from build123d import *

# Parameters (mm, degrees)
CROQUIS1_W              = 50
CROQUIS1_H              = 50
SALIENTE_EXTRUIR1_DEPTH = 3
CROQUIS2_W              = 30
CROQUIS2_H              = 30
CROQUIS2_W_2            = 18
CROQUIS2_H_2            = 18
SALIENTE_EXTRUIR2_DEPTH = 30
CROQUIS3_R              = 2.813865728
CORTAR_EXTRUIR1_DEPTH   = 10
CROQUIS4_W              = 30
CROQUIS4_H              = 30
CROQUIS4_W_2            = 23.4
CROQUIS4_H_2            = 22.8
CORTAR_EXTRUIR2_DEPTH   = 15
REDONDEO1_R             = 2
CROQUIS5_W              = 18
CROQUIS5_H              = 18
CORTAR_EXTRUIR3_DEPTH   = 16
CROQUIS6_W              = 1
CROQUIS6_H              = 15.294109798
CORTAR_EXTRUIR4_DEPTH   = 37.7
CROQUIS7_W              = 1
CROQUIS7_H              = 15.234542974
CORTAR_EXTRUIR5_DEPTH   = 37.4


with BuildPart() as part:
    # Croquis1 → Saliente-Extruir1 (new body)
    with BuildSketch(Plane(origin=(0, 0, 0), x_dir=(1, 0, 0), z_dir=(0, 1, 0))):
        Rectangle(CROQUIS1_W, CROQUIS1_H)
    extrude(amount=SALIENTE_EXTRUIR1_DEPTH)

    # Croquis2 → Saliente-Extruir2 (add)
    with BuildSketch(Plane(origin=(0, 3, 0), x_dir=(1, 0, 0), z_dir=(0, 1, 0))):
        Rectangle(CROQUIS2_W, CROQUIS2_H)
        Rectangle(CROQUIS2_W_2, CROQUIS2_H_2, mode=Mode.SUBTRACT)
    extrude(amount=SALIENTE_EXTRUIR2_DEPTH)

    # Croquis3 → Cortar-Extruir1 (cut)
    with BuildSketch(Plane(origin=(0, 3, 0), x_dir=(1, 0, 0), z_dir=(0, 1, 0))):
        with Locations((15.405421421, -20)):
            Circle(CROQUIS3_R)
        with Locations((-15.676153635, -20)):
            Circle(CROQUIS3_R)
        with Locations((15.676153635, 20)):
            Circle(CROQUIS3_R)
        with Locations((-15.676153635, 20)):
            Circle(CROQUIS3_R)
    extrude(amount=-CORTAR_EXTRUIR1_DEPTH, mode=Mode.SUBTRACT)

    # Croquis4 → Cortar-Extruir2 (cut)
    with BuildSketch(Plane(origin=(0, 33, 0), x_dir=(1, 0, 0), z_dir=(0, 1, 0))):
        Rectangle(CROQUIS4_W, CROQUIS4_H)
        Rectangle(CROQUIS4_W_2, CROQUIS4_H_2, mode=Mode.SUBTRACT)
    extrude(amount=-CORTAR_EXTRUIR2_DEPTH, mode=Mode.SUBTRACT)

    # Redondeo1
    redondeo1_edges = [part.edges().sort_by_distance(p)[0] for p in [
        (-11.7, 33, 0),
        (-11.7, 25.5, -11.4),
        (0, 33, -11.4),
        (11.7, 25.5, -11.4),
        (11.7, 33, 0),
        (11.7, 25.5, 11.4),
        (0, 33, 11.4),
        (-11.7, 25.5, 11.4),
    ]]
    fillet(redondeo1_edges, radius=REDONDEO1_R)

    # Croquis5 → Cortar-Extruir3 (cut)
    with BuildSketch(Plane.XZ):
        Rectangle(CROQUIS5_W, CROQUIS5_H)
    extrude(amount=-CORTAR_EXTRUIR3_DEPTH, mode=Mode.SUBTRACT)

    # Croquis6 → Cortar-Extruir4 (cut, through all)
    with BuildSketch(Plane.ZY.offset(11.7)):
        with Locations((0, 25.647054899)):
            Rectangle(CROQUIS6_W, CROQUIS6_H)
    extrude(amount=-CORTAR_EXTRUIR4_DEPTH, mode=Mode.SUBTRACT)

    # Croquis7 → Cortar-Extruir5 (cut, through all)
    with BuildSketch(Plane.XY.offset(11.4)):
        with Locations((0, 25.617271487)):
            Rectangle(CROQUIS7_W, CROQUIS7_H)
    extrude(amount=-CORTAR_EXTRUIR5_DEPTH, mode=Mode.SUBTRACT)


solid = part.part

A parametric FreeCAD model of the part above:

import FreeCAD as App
import Part
import Sketcher
Q = App.Units.Quantity


def edges_at(feature, points):
    """Names of the edges that pass closest to the given points."""
    edges = feature.Shape.Edges
    near = lambda p: min(range(len(edges)), key=lambda i: edges[i].distToShape(Part.Vertex(*p))[0])
    return sorted({f"Edge{near(p) + 1}" for p in points})

doc = App.newDocument("Part")
params = doc.addObject("Spreadsheet::Sheet", "Params")
for row, (alias, value) in enumerate([
    ("sketch1_width", "50 mm"),
    ("pad1_length", "3 mm"),
    ("sketch2_width", "30 mm"),
    ("sketch2_width2", "18 mm"),
    ("pad2_length", "30 mm"),
    ("pocket1_length", "10 mm"),
    ("sketch4_width", "30 mm"),
    ("sketch4_width2", "23.4 mm"),
    ("sketch4_height", "22.8 mm"),
    ("pocket2_length", "15 mm"),
    ("fillet_radius", "2 mm"),
    ("sketch5_width", "18 mm"),
    ("pocket3_length", "16 mm"),
    ("sketch6_height", "1 mm"),
    ("sketch7_width", "1 mm"),
], start=1):
    params.set(f"A{row}", alias)
    params.set(f"B{row}", "=" + value)
    params.setAlias(f"B{row}", alias)

body = doc.addObject("PartDesign::Body", "Body")

sketch1 = doc.addObject("Sketcher::SketchObject", "Sketch")
body.addObject(sketch1)
sketch1.AttachmentSupport = (doc.XZ_Plane, [""])
sketch1.MapMode = "FlatFace"
sketch1.addGeometry(Part.LineSegment(App.Vector(-25, -25, 0), App.Vector(-25, 25, 0)), False)
sketch1.addGeometry(Part.LineSegment(App.Vector(-25, 25, 0), App.Vector(25, 25, 0)), False)
sketch1.addGeometry(Part.LineSegment(App.Vector(25, 25, 0), App.Vector(25, -25, 0)), False)
sketch1.addGeometry(Part.LineSegment(App.Vector(25, -25, 0), App.Vector(-25, -25, 0)), False)
sketch1.addConstraint(Sketcher.Constraint("Coincident", 0, 2, 1, 1))
sketch1.addConstraint(Sketcher.Constraint("Coincident", 1, 2, 2, 1))
sketch1.addConstraint(Sketcher.Constraint("Coincident", 2, 2, 3, 1))
sketch1.addConstraint(Sketcher.Constraint("Coincident", 3, 2, 0, 1))
sketch1.addConstraint(Sketcher.Constraint("Vertical", 0))
sketch1.addConstraint(Sketcher.Constraint("Horizontal", 1))
sketch1.addConstraint(Sketcher.Constraint("Vertical", 2))
sketch1.addConstraint(Sketcher.Constraint("Horizontal", 3))
sketch1.addConstraint(Sketcher.Constraint("Symmetric", 0, 2, 2, 2, -1, 1))
sketch1.addConstraint(Sketcher.Constraint("Equal", 3, 0))
sketch1.addConstraint(Sketcher.Constraint("DistanceX", 1, 1, 1, 2, Q("50 mm")))
sketch1.setExpression("Constraints[10]", "Params.sketch1_width")
pad1 = doc.addObject("PartDesign::Pad", "Pad")
body.addObject(pad1)
pad1.Profile = sketch1
pad1.setExpression("Length", "Params.pad1_length")
pad1.Reversed = True

sketch2 = doc.addObject("Sketcher::SketchObject", "Sketch001")
body.addObject(sketch2)
sketch2.AttachmentSupport = (doc.XZ_Plane, [""])
sketch2.MapMode = "FlatFace"
sketch2.AttachmentOffset = App.Placement(App.Vector(0, 0, -3), App.Rotation())
sketch2.addGeometry(Part.LineSegment(App.Vector(-15, -15, 0), App.Vector(-15, 15, 0)), False)
sketch2.addGeometry(Part.LineSegment(App.Vector(-15, 15, 0), App.Vector(15, 15, 0)), False)
sketch2.addGeometry(Part.LineSegment(App.Vector(15, 15, 0), App.Vector(15, -15, 0)), False)
sketch2.addGeometry(Part.LineSegment(App.Vector(15, -15, 0), App.Vector(-15, -15, 0)), False)
sketch2.addGeometry(Part.LineSegment(App.Vector(9, 9, 0), App.Vector(-9, 9, 0)), False)
sketch2.addGeometry(Part.LineSegment(App.Vector(-9, 9, 0), App.Vector(-9, -9, 0)), False)
sketch2.addGeometry(Part.LineSegment(App.Vector(-9, -9, 0), App.Vector(9, -9, 0)), False)
sketch2.addGeometry(Part.LineSegment(App.Vector(9, -9, 0), App.Vector(9, 9, 0)), False)
sketch2.addConstraint(Sketcher.Constraint("Coincident", 0, 2, 1, 1))
sketch2.addConstraint(Sketcher.Constraint("Coincident", 1, 2, 2, 1))
sketch2.addConstraint(Sketcher.Constraint("Coincident", 2, 2, 3, 1))
sketch2.addConstraint(Sketcher.Constraint("Coincident", 3, 2, 0, 1))
sketch2.addConstraint(Sketcher.Constraint("Coincident", 4, 2, 5, 1))
sketch2.addConstraint(Sketcher.Constraint("Coincident", 5, 2, 6, 1))
sketch2.addConstraint(Sketcher.Constraint("Coincident", 6, 2, 7, 1))
sketch2.addConstraint(Sketcher.Constraint("Coincident", 7, 2, 4, 1))
sketch2.addConstraint(Sketcher.Constraint("Vertical", 0))
sketch2.addConstraint(Sketcher.Constraint("Horizontal", 1))
sketch2.addConstraint(Sketcher.Constraint("Vertical", 2))
sketch2.addConstraint(Sketcher.Constraint("Horizontal", 3))
sketch2.addConstraint(Sketcher.Constraint("Horizontal", 4))
sketch2.addConstraint(Sketcher.Constraint("Vertical", 5))
sketch2.addConstraint(Sketcher.Constraint("Horizontal", 6))
sketch2.addConstraint(Sketcher.Constraint("Vertical", 7))
sketch2.addConstraint(Sketcher.Constraint("Symmetric", 0, 2, 2, 2, -1, 1))
sketch2.addConstraint(Sketcher.Constraint("Symmetric", 4, 2, 6, 2, -1, 1))
sketch2.addConstraint(Sketcher.Constraint("Equal", 3, 0))
sketch2.addConstraint(Sketcher.Constraint("Equal", 6, 5))
sketch2.addConstraint(Sketcher.Constraint("DistanceX", 1, 1, 1, 2, Q("30 mm")))
sketch2.addConstraint(Sketcher.Constraint("DistanceX", 4, 2, 4, 1, Q("18 mm")))
sketch2.setExpression("Constraints[20]", "Params.sketch2_width")
sketch2.setExpression("Constraints[21]", "Params.sketch2_width2")
pad2 = doc.addObject("PartDesign::Pad", "Pad001")
body.addObject(pad2)
pad2.Profile = sketch2
pad2.setExpression("Length", "Params.pad2_length")
pad2.Reversed = True

sketch3 = doc.addObject("Sketcher::SketchObject", "Sketch002")
body.addObject(sketch3)
sketch3.AttachmentSupport = (doc.XZ_Plane, [""])
sketch3.MapMode = "FlatFace"
sketch3.AttachmentOffset = App.Placement(App.Vector(0, 0, -3), App.Rotation())
sketch3.addGeometry(Part.Circle(App.Vector(15.4, 20, 0), App.Vector(0, 0, 1), 2.8), False)
sketch3.addGeometry(Part.Circle(App.Vector(-15.7, 20, 0), App.Vector(0, 0, 1), 2.8), False)
sketch3.addGeometry(Part.Circle(App.Vector(15.7, -20, 0), App.Vector(0, 0, 1), 2.8), False)
sketch3.addGeometry(Part.Circle(App.Vector(-15.7, -20, 0), App.Vector(0, 0, 1), 2.8), False)
sketch3.addConstraint(Sketcher.Constraint("Equal", 0, 1))
sketch3.addConstraint(Sketcher.Constraint("Equal", 1, 2))
sketch3.addConstraint(Sketcher.Constraint("Equal", 2, 3))
sketch3.addConstraint(Sketcher.Constraint("Symmetric", 1, 3, 2, 3, -1, 1))
sketch3.addConstraint(Sketcher.Constraint("Symmetric", 2, 3, 3, 3, -2))
sketch3.addConstraint(Sketcher.Constraint("Horizontal", 0, 3, 1, 3))
sketch3.addConstraint(Sketcher.Constraint("DistanceY", -1, 1, 0, 3, Q("20 mm")))
sketch3.addConstraint(Sketcher.Constraint("Diameter", 0, Q("5.627731 mm")))
sketch3.addConstraint(Sketcher.Constraint("DistanceX", -1, 1, 0, 3, Q("15.405421 mm")))
sketch3.addConstraint(Sketcher.Constraint("DistanceX", 1, 3, -1, 1, Q("15.676154 mm")))
pocket1 = doc.addObject("PartDesign::Pocket", "Pocket")
body.addObject(pocket1)
pocket1.Profile = sketch3
pocket1.setExpression("Length", "Params.pocket1_length")
pocket1.Reversed = True

sketch4 = doc.addObject("Sketcher::SketchObject", "Sketch003")
body.addObject(sketch4)
sketch4.AttachmentSupport = (doc.XZ_Plane, [""])
sketch4.MapMode = "FlatFace"
sketch4.AttachmentOffset = App.Placement(App.Vector(0, 0, -33), App.Rotation())
sketch4.addGeometry(Part.LineSegment(App.Vector(-15, -15, 0), App.Vector(-15, 15, 0)), False)
sketch4.addGeometry(Part.LineSegment(App.Vector(-15, 15, 0), App.Vector(15, 15, 0)), False)
sketch4.addGeometry(Part.LineSegment(App.Vector(15, 15, 0), App.Vector(15, -15, 0)), False)
sketch4.addGeometry(Part.LineSegment(App.Vector(15, -15, 0), App.Vector(-15, -15, 0)), False)
sketch4.addGeometry(Part.LineSegment(App.Vector(12, 11, 0), App.Vector(-12, 11, 0)), False)
sketch4.addGeometry(Part.LineSegment(App.Vector(-12, 11, 0), App.Vector(-12, -11, 0)), False)
sketch4.addGeometry(Part.LineSegment(App.Vector(-12, -11, 0), App.Vector(12, -11, 0)), False)
sketch4.addGeometry(Part.LineSegment(App.Vector(12, -11, 0), App.Vector(12, 11, 0)), False)
sketch4.addConstraint(Sketcher.Constraint("Coincident", 0, 2, 1, 1))
sketch4.addConstraint(Sketcher.Constraint("Coincident", 1, 2, 2, 1))
sketch4.addConstraint(Sketcher.Constraint("Coincident", 2, 2, 3, 1))
sketch4.addConstraint(Sketcher.Constraint("Coincident", 3, 2, 0, 1))
sketch4.addConstraint(Sketcher.Constraint("Coincident", 4, 2, 5, 1))
sketch4.addConstraint(Sketcher.Constraint("Coincident", 5, 2, 6, 1))
sketch4.addConstraint(Sketcher.Constraint("Coincident", 6, 2, 7, 1))
sketch4.addConstraint(Sketcher.Constraint("Coincident", 7, 2, 4, 1))
sketch4.addConstraint(Sketcher.Constraint("Vertical", 0))
sketch4.addConstraint(Sketcher.Constraint("Horizontal", 1))
sketch4.addConstraint(Sketcher.Constraint("Vertical", 2))
sketch4.addConstraint(Sketcher.Constraint("Horizontal", 3))
sketch4.addConstraint(Sketcher.Constraint("Horizontal", 4))
sketch4.addConstraint(Sketcher.Constraint("Vertical", 5))
sketch4.addConstraint(Sketcher.Constraint("Horizontal", 6))
sketch4.addConstraint(Sketcher.Constraint("Vertical", 7))
sketch4.addConstraint(Sketcher.Constraint("Symmetric", 0, 2, 2, 2, -1, 1))
sketch4.addConstraint(Sketcher.Constraint("Symmetric", 4, 2, 6, 2, -1, 1))
sketch4.addConstraint(Sketcher.Constraint("Equal", 3, 0))
sketch4.addConstraint(Sketcher.Constraint("DistanceX", 1, 1, 1, 2, Q("30 mm")))
sketch4.addConstraint(Sketcher.Constraint("DistanceX", 4, 2, 4, 1, Q("23.4 mm")))
sketch4.addConstraint(Sketcher.Constraint("DistanceY", 5, 2, 5, 1, Q("22.8 mm")))
sketch4.setExpression("Constraints[19]", "Params.sketch4_width")
sketch4.setExpression("Constraints[20]", "Params.sketch4_width2")
sketch4.setExpression("Constraints[21]", "Params.sketch4_height")
pocket2 = doc.addObject("PartDesign::Pocket", "Pocket001")
body.addObject(pocket2)
pocket2.Profile = sketch4
pocket2.setExpression("Length", "Params.pocket2_length")
pocket2.Reversed = True
doc.recompute()

fillet = doc.addObject("PartDesign::Fillet", "Fillet")
body.addObject(fillet)
fillet.Base = (pocket2, edges_at(pocket2, [
    (-11.7, 33, 0),
    (-11.7, 25.5, -11.4),
    (0, 33, -11.4),
    (11.7, 25.5, -11.4),
    (11.7, 33, 0),
    (11.7, 25.5, 11.4),
    (0, 33, 11.4),
    (-11.7, 25.5, 11.4),
]))
fillet.setExpression("Radius", "Params.fillet_radius")

sketch5 = doc.addObject("Sketcher::SketchObject", "Sketch004")
body.addObject(sketch5)
sketch5.AttachmentSupport = (doc.XZ_Plane, [""])
sketch5.MapMode = "FlatFace"
sketch5.addGeometry(Part.LineSegment(App.Vector(-9, 9, 0), App.Vector(-9, -9, 0)), False)
sketch5.addGeometry(Part.LineSegment(App.Vector(-9, -9, 0), App.Vector(9, -9, 0)), False)
sketch5.addGeometry(Part.LineSegment(App.Vector(9, -9, 0), App.Vector(9, 9, 0)), False)
sketch5.addGeometry(Part.LineSegment(App.Vector(9, 9, 0), App.Vector(-9, 9, 0)), False)
sketch5.addConstraint(Sketcher.Constraint("Coincident", 0, 2, 1, 1))
sketch5.addConstraint(Sketcher.Constraint("Coincident", 1, 2, 2, 1))
sketch5.addConstraint(Sketcher.Constraint("Coincident", 2, 2, 3, 1))
sketch5.addConstraint(Sketcher.Constraint("Coincident", 3, 2, 0, 1))
sketch5.addConstraint(Sketcher.Constraint("Vertical", 0))
sketch5.addConstraint(Sketcher.Constraint("Horizontal", 1))
sketch5.addConstraint(Sketcher.Constraint("Vertical", 2))
sketch5.addConstraint(Sketcher.Constraint("Horizontal", 3))
sketch5.addConstraint(Sketcher.Constraint("Symmetric", 0, 2, 2, 2, -1, 1))
sketch5.addConstraint(Sketcher.Constraint("Equal", 3, 0))
sketch5.addConstraint(Sketcher.Constraint("DistanceX", 1, 1, 1, 2, Q("18 mm")))
sketch5.setExpression("Constraints[10]", "Params.sketch5_width")
pocket3 = doc.addObject("PartDesign::Pocket", "Pocket002")
body.addObject(pocket3)
pocket3.Profile = sketch5
pocket3.setExpression("Length", "Params.pocket3_length")

sketch6 = doc.addObject("Sketcher::SketchObject", "Sketch005")
body.addObject(sketch6)
sketch6.AttachmentSupport = (doc.YZ_Plane, [""])
sketch6.MapMode = "FlatFace"
sketch6.AttachmentOffset = App.Placement(App.Vector(0, 0, -11.7), App.Rotation())
sketch6.addGeometry(Part.LineSegment(App.Vector(33.3, -0.5, 0), App.Vector(18, -0.5, 0)), False)
sketch6.addGeometry(Part.LineSegment(App.Vector(18, -0.5, 0), App.Vector(18, 0.5, 0)), False)
sketch6.addGeometry(Part.LineSegment(App.Vector(18, 0.5, 0), App.Vector(33.3, 0.5, 0)), False)
sketch6.addGeometry(Part.LineSegment(App.Vector(33.3, 0.5, 0), App.Vector(33.3, -0.5, 0)), False)
sketch6.addConstraint(Sketcher.Constraint("Coincident", 0, 2, 1, 1))
sketch6.addConstraint(Sketcher.Constraint("Coincident", 1, 2, 2, 1))
sketch6.addConstraint(Sketcher.Constraint("Coincident", 2, 2, 3, 1))
sketch6.addConstraint(Sketcher.Constraint("Coincident", 3, 2, 0, 1))
sketch6.addConstraint(Sketcher.Constraint("Horizontal", 0))
sketch6.addConstraint(Sketcher.Constraint("Vertical", 1))
sketch6.addConstraint(Sketcher.Constraint("Horizontal", 2))
sketch6.addConstraint(Sketcher.Constraint("Vertical", 3))
sketch6.addConstraint(Sketcher.Constraint("DistanceY", 1, 1, 1, 2, Q("1 mm")))
sketch6.addConstraint(Sketcher.Constraint("DistanceX", -1, 1, 0, 2, Q("18 mm")))
sketch6.addConstraint(Sketcher.Constraint("DistanceY", 0, 2, -1, 1, Q("0.5 mm")))
sketch6.addConstraint(Sketcher.Constraint("DistanceX", 0, 2, 0, 1, Q("15.29411 mm")))
sketch6.setExpression("Constraints[8]", "Params.sketch6_height")
pocket4 = doc.addObject("PartDesign::Pocket", "Pocket003")
body.addObject(pocket4)
pocket4.Profile = sketch6
pocket4.Type = "ThroughAll"
pocket4.Reversed = True

sketch7 = doc.addObject("Sketcher::SketchObject", "Sketch006")
body.addObject(sketch7)
sketch7.AttachmentSupport = (doc.XY_Plane, [""])
sketch7.MapMode = "FlatFace"
sketch7.AttachmentOffset = App.Placement(App.Vector(0, 0, 11.4), App.Rotation())
sketch7.addGeometry(Part.LineSegment(App.Vector(-0.5, 33.2, 0), App.Vector(-0.5, 18, 0)), False)
sketch7.addGeometry(Part.LineSegment(App.Vector(-0.5, 18, 0), App.Vector(0.5, 18, 0)), False)
sketch7.addGeometry(Part.LineSegment(App.Vector(0.5, 18, 0), App.Vector(0.5, 33.2, 0)), False)
sketch7.addGeometry(Part.LineSegment(App.Vector(0.5, 33.2, 0), App.Vector(-0.5, 33.2, 0)), False)
sketch7.addConstraint(Sketcher.Constraint("Coincident", 0, 2, 1, 1))
sketch7.addConstraint(Sketcher.Constraint("Coincident", 1, 2, 2, 1))
sketch7.addConstraint(Sketcher.Constraint("Coincident", 2, 2, 3, 1))
sketch7.addConstraint(Sketcher.Constraint("Coincident", 3, 2, 0, 1))
sketch7.addConstraint(Sketcher.Constraint("Vertical", 0))
sketch7.addConstraint(Sketcher.Constraint("Horizontal", 1))
sketch7.addConstraint(Sketcher.Constraint("Vertical", 2))
sketch7.addConstraint(Sketcher.Constraint("Horizontal", 3))
sketch7.addConstraint(Sketcher.Constraint("DistanceX", 1, 1, 1, 2, Q("1 mm")))
sketch7.addConstraint(Sketcher.Constraint("DistanceY", -1, 1, 0, 2, Q("18 mm")))
sketch7.addConstraint(Sketcher.Constraint("DistanceX", 0, 2, -1, 1, Q("0.5 mm")))
sketch7.addConstraint(Sketcher.Constraint("DistanceY", 0, 2, 0, 1, Q("15.234543 mm")))
sketch7.setExpression("Constraints[8]", "Params.sketch7_width")
pocket5 = doc.addObject("PartDesign::Pocket", "Pocket004")
body.addObject(pocket5)
pocket5.Profile = sketch7
pocket5.Type = "ThroughAll"

doc.recompute()
